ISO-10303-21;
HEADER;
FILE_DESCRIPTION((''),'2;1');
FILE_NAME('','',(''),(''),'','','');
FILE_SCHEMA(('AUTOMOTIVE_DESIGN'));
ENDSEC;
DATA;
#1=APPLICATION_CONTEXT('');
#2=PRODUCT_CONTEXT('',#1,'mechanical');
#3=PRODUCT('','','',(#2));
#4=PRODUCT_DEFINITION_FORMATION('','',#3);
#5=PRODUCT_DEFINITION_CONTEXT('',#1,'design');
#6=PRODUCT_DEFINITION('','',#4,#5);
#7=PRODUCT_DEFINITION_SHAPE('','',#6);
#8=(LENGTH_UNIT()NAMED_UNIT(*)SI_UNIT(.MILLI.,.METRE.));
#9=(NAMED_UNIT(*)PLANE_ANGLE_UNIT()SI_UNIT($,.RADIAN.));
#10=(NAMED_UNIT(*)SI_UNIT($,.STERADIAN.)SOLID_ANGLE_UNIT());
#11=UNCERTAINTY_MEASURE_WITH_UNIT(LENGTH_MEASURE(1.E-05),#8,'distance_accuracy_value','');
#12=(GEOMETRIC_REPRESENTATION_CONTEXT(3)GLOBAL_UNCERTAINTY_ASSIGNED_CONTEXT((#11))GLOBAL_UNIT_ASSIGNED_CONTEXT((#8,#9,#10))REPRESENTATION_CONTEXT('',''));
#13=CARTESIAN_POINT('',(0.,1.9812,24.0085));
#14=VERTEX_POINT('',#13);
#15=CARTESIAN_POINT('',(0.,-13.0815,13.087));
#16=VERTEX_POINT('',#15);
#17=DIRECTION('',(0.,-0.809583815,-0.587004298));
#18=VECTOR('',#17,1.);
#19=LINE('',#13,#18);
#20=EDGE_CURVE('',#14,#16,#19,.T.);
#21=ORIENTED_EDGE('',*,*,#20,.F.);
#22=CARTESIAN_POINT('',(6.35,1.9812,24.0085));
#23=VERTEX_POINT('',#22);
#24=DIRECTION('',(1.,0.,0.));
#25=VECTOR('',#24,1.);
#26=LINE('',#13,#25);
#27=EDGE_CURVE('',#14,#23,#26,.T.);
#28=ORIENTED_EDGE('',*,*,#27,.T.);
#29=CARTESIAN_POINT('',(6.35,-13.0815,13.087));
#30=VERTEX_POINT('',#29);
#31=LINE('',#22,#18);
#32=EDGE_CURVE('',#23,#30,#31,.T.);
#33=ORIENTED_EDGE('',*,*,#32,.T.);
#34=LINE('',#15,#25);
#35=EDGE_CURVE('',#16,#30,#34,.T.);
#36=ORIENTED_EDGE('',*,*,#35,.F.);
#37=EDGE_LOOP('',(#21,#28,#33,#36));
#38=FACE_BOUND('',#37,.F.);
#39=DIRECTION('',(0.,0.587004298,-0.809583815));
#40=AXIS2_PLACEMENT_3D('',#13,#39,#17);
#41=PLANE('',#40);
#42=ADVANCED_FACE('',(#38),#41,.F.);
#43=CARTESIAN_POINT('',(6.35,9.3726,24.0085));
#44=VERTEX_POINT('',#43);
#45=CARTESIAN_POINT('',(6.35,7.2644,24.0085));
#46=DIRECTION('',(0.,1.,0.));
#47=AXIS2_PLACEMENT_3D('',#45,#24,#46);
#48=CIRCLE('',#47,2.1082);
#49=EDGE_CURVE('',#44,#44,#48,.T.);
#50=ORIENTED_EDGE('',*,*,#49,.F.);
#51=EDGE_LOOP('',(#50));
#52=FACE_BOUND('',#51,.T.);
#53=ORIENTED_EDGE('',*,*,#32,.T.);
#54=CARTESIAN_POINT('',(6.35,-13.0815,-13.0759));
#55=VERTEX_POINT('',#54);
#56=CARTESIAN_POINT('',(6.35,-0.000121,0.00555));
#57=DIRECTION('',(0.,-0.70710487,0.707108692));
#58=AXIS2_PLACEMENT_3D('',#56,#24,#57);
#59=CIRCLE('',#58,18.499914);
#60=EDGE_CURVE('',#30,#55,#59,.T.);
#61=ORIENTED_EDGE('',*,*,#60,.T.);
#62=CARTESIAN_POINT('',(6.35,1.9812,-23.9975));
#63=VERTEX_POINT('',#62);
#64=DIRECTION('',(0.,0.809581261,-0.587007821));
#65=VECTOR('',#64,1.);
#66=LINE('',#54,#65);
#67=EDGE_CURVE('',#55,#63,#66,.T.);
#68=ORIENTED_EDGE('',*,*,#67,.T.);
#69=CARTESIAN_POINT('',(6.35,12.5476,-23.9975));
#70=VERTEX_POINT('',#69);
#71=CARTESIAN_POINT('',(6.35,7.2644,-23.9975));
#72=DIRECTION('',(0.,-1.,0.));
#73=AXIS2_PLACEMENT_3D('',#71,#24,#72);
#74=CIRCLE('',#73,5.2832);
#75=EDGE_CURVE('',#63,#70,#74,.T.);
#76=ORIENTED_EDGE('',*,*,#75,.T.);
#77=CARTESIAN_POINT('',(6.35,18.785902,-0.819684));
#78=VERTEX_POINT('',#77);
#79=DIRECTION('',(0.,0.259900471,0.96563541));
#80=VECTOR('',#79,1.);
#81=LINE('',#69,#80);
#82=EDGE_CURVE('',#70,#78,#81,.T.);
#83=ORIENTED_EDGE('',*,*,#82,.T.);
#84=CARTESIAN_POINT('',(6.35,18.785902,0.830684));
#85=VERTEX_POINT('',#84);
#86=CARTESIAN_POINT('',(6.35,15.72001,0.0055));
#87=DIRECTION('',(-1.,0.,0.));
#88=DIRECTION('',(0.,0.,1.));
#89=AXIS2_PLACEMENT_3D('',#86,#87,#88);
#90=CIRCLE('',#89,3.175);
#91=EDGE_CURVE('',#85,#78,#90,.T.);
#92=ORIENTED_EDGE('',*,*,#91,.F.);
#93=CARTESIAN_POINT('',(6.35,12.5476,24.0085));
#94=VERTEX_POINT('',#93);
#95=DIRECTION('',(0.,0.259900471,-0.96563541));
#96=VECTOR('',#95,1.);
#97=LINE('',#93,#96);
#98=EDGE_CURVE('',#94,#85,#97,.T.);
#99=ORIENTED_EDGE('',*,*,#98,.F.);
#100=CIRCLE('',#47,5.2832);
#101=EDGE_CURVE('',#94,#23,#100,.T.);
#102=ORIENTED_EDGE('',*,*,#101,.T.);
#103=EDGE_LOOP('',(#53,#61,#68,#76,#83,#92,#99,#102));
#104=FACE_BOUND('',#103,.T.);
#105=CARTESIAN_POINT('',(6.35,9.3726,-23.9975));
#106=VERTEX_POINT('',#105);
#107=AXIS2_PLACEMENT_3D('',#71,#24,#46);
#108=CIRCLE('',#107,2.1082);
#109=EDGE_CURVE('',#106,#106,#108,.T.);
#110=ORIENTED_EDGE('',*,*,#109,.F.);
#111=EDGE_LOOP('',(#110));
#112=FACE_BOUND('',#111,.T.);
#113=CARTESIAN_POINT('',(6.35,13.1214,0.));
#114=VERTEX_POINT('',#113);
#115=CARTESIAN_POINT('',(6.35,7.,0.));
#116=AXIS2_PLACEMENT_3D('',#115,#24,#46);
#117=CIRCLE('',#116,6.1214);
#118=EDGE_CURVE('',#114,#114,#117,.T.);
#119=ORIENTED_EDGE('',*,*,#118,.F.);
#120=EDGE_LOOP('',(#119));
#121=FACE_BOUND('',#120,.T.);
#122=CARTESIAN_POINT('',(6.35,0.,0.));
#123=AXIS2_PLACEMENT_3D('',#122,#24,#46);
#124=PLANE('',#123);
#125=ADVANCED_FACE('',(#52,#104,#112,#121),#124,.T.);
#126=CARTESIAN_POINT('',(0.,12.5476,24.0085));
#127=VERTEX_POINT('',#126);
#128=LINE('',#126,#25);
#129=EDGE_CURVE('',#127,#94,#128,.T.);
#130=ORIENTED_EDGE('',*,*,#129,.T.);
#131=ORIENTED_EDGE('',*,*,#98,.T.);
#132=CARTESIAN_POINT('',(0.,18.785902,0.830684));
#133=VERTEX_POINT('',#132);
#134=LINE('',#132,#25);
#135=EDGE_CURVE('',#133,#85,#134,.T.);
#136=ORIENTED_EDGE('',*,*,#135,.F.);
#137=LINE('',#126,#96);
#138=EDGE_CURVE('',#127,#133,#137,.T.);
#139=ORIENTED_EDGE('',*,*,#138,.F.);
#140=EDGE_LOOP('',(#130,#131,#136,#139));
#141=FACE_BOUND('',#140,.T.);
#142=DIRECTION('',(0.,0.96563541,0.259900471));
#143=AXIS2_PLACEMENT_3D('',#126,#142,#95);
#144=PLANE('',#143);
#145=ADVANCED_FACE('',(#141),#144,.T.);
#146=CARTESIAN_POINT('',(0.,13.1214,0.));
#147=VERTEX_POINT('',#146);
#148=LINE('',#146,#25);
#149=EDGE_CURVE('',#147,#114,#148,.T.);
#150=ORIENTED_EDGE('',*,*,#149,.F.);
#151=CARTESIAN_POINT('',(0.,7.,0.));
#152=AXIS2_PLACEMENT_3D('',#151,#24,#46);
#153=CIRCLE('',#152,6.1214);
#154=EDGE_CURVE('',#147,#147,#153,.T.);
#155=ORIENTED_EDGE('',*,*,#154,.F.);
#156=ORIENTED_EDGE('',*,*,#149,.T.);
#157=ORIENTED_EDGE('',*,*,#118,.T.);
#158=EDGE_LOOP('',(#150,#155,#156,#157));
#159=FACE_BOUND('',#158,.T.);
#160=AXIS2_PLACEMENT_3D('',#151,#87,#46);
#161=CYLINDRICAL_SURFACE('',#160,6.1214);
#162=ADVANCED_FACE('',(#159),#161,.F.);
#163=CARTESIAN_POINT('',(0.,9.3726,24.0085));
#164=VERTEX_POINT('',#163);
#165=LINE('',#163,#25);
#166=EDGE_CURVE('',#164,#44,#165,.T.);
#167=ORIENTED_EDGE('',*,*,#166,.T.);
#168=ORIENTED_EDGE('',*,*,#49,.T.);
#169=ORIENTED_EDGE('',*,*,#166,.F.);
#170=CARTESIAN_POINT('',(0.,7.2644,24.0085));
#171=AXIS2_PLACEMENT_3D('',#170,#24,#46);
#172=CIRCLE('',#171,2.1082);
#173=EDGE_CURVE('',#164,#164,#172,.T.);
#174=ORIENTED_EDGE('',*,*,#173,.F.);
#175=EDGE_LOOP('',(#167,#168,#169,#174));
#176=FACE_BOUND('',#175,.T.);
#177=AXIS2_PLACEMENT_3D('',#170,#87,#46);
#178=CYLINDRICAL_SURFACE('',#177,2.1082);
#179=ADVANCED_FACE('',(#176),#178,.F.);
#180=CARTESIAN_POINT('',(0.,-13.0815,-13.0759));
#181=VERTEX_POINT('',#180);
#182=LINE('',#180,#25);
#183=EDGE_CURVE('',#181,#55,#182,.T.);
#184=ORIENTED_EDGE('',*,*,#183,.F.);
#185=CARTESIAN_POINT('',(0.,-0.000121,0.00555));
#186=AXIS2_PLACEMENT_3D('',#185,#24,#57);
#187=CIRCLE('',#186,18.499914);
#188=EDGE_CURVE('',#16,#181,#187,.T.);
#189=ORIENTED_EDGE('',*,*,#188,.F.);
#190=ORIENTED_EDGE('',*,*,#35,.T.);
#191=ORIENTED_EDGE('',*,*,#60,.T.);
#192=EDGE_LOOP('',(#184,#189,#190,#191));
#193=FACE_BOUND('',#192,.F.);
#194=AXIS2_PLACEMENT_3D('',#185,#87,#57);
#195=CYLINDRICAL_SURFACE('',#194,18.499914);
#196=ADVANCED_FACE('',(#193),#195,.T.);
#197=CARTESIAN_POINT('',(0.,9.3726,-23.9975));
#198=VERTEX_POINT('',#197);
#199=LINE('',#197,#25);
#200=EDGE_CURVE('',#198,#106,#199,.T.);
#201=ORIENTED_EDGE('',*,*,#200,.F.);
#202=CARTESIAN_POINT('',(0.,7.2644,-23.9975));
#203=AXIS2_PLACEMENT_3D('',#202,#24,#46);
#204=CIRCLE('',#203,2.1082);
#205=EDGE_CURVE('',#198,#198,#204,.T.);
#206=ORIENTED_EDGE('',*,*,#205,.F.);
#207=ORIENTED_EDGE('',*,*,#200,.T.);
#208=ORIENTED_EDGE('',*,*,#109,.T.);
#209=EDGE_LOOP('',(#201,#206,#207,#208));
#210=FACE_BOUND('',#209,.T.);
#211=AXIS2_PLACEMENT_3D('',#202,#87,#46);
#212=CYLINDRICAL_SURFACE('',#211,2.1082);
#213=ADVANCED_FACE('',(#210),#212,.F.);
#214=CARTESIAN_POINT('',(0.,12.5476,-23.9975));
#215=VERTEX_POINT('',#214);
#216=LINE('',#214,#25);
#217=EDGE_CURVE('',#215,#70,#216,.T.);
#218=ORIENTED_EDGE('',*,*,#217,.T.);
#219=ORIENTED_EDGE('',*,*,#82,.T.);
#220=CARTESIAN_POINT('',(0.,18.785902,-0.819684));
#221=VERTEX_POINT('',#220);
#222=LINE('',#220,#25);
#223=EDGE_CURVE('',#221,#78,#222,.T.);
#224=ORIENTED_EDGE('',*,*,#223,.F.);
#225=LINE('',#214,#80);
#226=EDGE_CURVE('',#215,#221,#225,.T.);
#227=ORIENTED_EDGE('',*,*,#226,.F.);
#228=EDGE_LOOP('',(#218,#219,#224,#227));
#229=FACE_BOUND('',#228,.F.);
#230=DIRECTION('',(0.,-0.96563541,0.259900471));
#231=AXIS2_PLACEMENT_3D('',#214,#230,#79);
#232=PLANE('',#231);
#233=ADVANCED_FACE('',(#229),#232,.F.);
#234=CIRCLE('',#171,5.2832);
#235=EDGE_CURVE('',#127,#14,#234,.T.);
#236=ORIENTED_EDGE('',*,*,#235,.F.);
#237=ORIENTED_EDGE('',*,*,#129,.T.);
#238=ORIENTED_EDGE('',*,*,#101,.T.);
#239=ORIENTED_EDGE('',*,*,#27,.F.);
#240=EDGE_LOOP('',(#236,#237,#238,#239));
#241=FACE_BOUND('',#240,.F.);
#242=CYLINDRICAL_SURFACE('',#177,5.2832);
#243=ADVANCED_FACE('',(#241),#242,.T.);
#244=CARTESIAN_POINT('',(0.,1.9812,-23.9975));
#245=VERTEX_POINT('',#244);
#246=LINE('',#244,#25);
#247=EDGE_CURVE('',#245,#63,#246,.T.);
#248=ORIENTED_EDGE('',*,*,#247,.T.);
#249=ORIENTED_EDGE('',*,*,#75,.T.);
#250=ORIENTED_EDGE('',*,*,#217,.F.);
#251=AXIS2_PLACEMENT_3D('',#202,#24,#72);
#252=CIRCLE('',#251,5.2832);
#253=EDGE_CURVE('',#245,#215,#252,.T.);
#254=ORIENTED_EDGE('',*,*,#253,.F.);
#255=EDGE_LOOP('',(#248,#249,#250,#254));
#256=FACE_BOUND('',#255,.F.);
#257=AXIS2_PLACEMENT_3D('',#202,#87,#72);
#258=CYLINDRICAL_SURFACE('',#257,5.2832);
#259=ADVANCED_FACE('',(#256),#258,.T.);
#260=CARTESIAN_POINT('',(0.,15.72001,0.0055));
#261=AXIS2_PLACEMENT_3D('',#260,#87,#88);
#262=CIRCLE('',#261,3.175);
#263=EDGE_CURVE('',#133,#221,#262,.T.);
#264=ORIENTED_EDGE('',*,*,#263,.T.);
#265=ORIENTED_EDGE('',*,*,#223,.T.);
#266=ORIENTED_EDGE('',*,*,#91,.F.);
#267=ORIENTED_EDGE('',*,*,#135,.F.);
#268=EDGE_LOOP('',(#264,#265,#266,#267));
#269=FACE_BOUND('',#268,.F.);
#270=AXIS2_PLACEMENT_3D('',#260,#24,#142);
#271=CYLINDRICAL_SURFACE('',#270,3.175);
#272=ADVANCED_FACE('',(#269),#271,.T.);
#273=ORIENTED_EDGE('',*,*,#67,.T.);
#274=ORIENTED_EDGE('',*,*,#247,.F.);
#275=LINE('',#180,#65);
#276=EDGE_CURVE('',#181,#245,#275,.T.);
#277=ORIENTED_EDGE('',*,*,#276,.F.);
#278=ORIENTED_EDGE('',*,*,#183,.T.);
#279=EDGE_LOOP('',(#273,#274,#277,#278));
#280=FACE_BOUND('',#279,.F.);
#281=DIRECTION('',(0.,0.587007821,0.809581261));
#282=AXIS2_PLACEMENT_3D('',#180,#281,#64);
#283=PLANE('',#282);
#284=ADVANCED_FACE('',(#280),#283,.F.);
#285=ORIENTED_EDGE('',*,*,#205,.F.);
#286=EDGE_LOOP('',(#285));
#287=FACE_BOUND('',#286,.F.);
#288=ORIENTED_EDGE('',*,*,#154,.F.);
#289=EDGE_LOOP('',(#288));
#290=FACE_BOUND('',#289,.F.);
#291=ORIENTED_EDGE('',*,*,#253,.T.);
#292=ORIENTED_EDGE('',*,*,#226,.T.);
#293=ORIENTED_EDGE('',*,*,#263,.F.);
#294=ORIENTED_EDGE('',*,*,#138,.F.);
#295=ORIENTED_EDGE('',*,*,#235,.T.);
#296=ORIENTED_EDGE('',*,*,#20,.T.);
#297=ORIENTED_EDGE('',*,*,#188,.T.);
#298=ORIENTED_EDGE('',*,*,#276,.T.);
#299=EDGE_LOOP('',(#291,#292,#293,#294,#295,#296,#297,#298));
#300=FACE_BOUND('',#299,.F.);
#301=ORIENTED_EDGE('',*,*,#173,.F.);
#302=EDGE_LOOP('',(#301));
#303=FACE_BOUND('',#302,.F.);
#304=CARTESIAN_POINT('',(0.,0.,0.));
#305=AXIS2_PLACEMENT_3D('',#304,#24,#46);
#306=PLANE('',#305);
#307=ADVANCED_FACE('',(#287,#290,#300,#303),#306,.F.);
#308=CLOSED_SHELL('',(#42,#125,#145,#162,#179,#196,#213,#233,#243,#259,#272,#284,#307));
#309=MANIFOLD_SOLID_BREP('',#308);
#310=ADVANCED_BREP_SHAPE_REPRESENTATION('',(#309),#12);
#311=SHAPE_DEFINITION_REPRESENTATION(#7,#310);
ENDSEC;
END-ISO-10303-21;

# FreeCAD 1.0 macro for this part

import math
import FreeCAD as App
import Part
import Sketcher
from FreeCAD import Vector
Q = App.Units.Quantity


def edges_at(feature, points):
    """Names of the edges that pass closest to the given points."""
    edges = feature.Shape.Edges
    near = lambda p: min(range(len(edges)), key=lambda i: edges[i].distToShape(Part.Vertex(*p))[0])
    return sorted({f"Edge{near(p) + 1}" for p in points})

doc = App.newDocument("Part")
body = doc.addObject("PartDesign::Body", "Body")

# Sketch on YZ plane
sketch1 = doc.addObject("Sketcher::SketchObject", "Sketch")
body.addObject(sketch1)
sketch1.AttachmentSupport = (doc.YZ_Plane, [""])
sketch1.MapMode = "FlatFace"
sketch1.addGeometry([
    Part.LineSegment(Vector(19, 0, 0), Vector(12.5, 24, 0)),  # 0
    Part.ArcOfCircle(Part.Circle(Vector(7.3, 24, 0), Vector(0, 0, 1), 5.3), math.radians(0), math.radians(180)),  # 1
    Part.LineSegment(Vector(2, 24, 0), Vector(-13.1, 13.1, 0)),  # 2
    Part.ArcOfCircle(Part.Circle(Vector(0, 0, 0), Vector(0, 0, 1), 18.5), math.radians(135), math.radians(225)),  # 3
    Part.LineSegment(Vector(-13.1, -13.1, 0), Vector(2, -24, 0)),  # 4
    Part.ArcOfCircle(Part.Circle(Vector(7.3, -24, 0), Vector(0, 0, 1), 5.3), math.radians(180), math.radians(360)),  # 5
    Part.LineSegment(Vector(12.5, -24, 0), Vector(19, 0, 0)),  # 6
    Part.Circle(Vector(7.3, -24, 0), Vector(0, 0, 1), 2.1),  # 7
    Part.Circle(Vector(7, 0, 0), Vector(0, 0, 1), 6.1),  # 8
    Part.Circle(Vector(7.3, 24, 0), Vector(0, 0, 1), 2.1),  # 9
], False)
sketch1.addConstraint([
    Sketcher.Constraint("Coincident", 0, 2, 1, 1),
    Sketcher.Constraint("Coincident", 1, 2, 2, 1),
    Sketcher.Constraint("Coincident", 2, 2, 3, 1),
    Sketcher.Constraint("Coincident", 3, 2, 4, 1),
    Sketcher.Constraint("Coincident", 4, 2, 5, 1),
    Sketcher.Constraint("Coincident", 5, 2, 6, 1),
    Sketcher.Constraint("Coincident", 6, 2, 0, 1),
    Sketcher.Constraint("Coincident", 7, 3, 5, 3),
    Sketcher.Constraint("Coincident", 9, 3, 1, 3),
    Sketcher.Constraint("Equal", 1, 5),
    Sketcher.Constraint("Equal", 7, 9),
    Sketcher.Constraint("PointOnObject", 3, 3, -2),
    Sketcher.Constraint("PointOnObject", 8, 3, -1),
    Sketcher.Constraint("Horizontal", 9, 3, 0, 2),
    Sketcher.Constraint("Horizontal", 0, 2, 1, 2),
    Sketcher.Constraint("Horizontal", 7, 3, 4, 2),
    Sketcher.Constraint("Horizontal", 4, 2, 5, 2),
    Sketcher.Constraint("Horizontal", 3, 3, 6, 2),
    Sketcher.Constraint("Vertical", 1, 3, 5, 3),
    Sketcher.Constraint("Vertical", 2, 2, 3, 2),
    Sketcher.Constraint("Equal", 2, 4),
    Sketcher.Constraint("Diameter", 7, Q("0.166 in")),
    Sketcher.Constraint("Diameter", 8, Q("0.482 in")),
    Sketcher.Constraint("Radius", 1, Q("0.208 in")),
    Sketcher.Constraint("Radius", 3, 18.5),
    Sketcher.Constraint("DistanceY", 5, 3, 1, 3, Q("1.89 in")),
    Sketcher.Constraint("DistanceX", -1, 1, 1, 3, Q("0.286 in")),
    Sketcher.Constraint("Distance", 2, Q("0.7325 in")),
    Sketcher.Constraint("DistanceX", -1, 1, 8, 3, Q("0.2756 in")),
    Sketcher.Constraint("DistanceY", 3, 2, -1, 1, Q("0.5148 in")),
    Sketcher.Constraint("Distance", 0, 24.8572),
])
pad1 = doc.addObject("PartDesign::Pad", "Pad")
body.addObject(pad1)
pad1.Profile = sketch1
pad1.Length = Q("0.25 in")
doc.recompute()

fillet = doc.addObject("PartDesign::Fillet", "Fillet")
body.addObject(fillet)
fillet.Base = (pad1, edges_at(pad1, [(3.175, 19.008, 0.005)]))
fillet.Radius = Q("0.125 in")

doc.recompute()
